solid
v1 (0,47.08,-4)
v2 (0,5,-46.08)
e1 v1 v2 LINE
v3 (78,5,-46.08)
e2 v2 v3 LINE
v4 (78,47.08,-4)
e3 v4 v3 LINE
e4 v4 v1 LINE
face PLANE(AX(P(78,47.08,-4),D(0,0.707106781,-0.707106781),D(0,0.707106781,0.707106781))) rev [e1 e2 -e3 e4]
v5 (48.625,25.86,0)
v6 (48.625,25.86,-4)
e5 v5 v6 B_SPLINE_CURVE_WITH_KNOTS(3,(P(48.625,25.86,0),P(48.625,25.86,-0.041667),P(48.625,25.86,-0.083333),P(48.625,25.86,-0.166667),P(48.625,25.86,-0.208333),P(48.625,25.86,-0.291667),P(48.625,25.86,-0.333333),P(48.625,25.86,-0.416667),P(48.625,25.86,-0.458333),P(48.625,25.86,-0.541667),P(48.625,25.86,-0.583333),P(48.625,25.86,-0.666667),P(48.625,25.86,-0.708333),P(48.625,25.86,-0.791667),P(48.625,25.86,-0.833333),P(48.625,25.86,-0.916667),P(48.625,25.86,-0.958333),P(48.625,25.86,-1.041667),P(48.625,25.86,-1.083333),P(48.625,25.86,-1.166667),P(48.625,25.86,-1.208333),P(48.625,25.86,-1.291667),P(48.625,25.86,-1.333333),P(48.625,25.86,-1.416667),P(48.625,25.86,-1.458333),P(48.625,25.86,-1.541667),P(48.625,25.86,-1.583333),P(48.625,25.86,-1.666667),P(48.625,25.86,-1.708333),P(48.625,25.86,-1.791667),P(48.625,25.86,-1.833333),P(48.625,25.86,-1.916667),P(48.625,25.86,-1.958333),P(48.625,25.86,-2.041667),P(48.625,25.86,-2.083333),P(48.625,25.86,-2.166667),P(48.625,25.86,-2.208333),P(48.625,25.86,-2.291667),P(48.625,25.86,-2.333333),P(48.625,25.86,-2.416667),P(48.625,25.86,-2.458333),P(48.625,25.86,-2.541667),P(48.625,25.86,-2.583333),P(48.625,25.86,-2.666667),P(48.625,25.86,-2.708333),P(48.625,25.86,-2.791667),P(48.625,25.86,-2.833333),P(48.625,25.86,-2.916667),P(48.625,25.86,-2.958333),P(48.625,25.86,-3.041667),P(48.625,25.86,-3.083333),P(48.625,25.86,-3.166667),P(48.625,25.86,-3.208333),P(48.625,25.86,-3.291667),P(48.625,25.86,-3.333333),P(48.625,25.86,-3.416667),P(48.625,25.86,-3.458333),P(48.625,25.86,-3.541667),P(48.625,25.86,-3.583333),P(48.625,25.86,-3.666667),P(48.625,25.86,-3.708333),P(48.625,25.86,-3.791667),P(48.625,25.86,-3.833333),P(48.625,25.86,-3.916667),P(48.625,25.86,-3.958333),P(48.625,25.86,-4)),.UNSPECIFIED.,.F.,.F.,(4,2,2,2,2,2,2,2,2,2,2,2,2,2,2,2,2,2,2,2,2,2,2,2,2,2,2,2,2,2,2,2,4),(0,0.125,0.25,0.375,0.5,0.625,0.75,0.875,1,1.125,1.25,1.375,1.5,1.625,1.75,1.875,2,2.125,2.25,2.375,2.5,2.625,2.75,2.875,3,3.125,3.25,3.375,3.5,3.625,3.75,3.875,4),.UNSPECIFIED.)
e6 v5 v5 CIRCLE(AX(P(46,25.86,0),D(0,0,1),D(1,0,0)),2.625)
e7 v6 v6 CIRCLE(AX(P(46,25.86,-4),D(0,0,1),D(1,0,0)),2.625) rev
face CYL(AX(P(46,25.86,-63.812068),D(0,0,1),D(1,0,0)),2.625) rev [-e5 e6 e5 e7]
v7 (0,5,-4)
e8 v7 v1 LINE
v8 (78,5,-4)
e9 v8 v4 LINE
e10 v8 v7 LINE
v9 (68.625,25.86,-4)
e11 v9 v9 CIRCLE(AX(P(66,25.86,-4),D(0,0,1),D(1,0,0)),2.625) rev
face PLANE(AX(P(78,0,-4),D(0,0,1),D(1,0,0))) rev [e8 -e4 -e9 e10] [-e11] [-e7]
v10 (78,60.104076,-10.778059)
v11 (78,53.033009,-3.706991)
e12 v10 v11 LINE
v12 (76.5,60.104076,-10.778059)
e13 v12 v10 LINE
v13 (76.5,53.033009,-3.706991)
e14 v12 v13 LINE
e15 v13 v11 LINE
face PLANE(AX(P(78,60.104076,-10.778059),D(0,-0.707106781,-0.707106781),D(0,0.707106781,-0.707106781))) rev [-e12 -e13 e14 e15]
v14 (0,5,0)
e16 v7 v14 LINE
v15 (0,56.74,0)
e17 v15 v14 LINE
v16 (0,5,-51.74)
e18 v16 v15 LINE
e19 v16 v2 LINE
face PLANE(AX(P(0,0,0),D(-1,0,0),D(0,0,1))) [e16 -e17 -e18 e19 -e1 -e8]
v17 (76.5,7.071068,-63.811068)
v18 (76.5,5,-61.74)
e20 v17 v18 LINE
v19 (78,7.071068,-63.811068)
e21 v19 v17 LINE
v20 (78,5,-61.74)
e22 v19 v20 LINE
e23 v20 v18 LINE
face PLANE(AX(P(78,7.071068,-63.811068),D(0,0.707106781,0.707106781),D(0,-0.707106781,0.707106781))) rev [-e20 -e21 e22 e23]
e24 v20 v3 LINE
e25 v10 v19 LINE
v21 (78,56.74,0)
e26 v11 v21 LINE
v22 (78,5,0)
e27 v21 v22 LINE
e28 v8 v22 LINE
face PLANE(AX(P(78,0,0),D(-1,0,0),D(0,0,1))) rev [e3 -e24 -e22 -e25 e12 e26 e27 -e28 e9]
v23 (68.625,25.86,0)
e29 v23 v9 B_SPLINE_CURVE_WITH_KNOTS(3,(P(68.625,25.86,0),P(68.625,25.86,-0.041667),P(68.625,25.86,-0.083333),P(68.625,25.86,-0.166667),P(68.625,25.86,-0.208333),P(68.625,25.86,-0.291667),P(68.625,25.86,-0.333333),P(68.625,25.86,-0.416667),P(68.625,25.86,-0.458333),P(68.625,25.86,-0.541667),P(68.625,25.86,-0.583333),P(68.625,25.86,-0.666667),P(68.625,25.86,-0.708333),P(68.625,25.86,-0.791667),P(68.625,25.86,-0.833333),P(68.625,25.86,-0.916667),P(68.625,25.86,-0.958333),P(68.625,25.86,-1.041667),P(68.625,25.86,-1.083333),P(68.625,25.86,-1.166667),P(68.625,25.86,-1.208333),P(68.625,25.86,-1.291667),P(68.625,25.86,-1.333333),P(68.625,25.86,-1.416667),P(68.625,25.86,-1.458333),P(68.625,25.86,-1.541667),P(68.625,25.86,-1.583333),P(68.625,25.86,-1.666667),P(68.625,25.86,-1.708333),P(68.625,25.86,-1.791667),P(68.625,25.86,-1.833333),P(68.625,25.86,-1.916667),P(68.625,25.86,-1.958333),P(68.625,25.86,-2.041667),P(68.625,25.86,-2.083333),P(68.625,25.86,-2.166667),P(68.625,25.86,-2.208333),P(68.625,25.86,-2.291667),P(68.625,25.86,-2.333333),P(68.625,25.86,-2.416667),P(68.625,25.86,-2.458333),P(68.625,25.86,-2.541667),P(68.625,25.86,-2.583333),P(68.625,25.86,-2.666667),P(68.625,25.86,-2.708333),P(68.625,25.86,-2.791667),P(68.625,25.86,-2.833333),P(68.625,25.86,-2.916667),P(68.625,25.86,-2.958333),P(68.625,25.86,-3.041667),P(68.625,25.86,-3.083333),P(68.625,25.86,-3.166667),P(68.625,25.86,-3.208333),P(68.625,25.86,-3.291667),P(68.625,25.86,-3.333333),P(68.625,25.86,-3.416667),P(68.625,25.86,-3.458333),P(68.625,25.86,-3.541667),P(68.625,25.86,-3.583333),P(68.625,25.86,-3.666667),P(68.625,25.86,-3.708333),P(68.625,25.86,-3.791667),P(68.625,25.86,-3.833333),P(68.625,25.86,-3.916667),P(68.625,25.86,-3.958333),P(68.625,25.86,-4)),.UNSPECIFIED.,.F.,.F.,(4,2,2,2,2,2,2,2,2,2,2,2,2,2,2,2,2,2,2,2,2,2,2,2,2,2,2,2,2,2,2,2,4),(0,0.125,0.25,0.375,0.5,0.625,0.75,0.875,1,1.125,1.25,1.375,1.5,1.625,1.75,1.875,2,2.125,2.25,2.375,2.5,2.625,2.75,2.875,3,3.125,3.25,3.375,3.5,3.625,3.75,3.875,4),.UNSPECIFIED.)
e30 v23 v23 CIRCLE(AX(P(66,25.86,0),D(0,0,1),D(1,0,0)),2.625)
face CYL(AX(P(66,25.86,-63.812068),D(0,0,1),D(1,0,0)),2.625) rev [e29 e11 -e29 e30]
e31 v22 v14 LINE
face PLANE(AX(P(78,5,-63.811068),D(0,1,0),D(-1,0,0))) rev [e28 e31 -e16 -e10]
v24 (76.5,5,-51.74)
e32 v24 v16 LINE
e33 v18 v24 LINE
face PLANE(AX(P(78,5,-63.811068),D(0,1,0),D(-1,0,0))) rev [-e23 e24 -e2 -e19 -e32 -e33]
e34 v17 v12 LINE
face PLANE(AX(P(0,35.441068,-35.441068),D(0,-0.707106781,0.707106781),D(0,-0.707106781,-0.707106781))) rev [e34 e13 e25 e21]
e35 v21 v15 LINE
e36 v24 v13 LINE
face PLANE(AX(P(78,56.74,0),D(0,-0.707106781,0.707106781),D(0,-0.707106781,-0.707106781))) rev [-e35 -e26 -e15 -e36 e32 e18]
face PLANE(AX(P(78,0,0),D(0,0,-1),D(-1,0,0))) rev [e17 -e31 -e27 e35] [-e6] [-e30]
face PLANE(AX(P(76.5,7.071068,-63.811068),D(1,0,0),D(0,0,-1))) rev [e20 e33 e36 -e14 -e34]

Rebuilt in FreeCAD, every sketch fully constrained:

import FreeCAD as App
import Part
import Sketcher
Q = App.Units.Quantity

doc = App.newDocument("Part")
body = doc.addObject("PartDesign::Body", "Body")

# Sketch on YZ plane
sketch1 = body.newObject("Sketcher::SketchObject", "Sketch")
sketch1.AttachmentSupport = (doc.getObject("YZ_Plane"), [""])
sketch1.MapMode = "FlatFace"
sketch1.addGeometry([
    Part.LineSegment(App.Vector(56.7, 0, 0), App.Vector(0, 0, 0)),  # 0
    Part.LineSegment(App.Vector(0, 0, 0), App.Vector(0, -4, 0)),  # 1
    Part.LineSegment(App.Vector(0, -4, 0), App.Vector(47.1, -4, 0)),  # 2
    Part.LineSegment(App.Vector(47.1, -4, 0), App.Vector(0, -51.1, 0)),  # 3
    Part.LineSegment(App.Vector(0, -51.1, 0), App.Vector(0, -56.7, 0)),  # 4
    Part.LineSegment(App.Vector(0, -56.7, 0), App.Vector(56.7, 0, 0)),  # 5
], False)
sketch1.addConstraint([
    Sketcher.Constraint("Coincident", 0, 2, 1, 1),
    Sketcher.Constraint("Coincident", 1, 2, 2, 1),
    Sketcher.Constraint("Coincident", 2, 2, 3, 1),
    Sketcher.Constraint("Coincident", 3, 2, 4, 1),
    Sketcher.Constraint("Coincident", 4, 2, 5, 1),
    Sketcher.Constraint("Coincident", 5, 2, 0, 1),
    Sketcher.Constraint("Horizontal", 0),
    Sketcher.Constraint("Vertical", 1),
    Sketcher.Constraint("Horizontal", 2),
    Sketcher.Constraint("Vertical", 4),
    Sketcher.Constraint("Coincident", 0, 2, -1, 1),
    Sketcher.Constraint("PointOnObject", 3, 2, -2),
    Sketcher.Constraint("Parallel", 3, 5),
    Sketcher.Constraint("DistanceY", 1, 2, 1, 1, 4.0),
    Sketcher.Constraint("Angle", 3, Q("-135 deg")),
    Sketcher.Constraint("DistanceX", 0, 2, 0, 1, 56.74),
    Sketcher.Constraint("DistanceX", 2, 1, 2, 2, 47.08),
])
pad1 = body.newObject("PartDesign::Pad", "Pad")
pad1.Profile = sketch1
pad1.Length = 78

# Sketch on an angled plane
sketch2 = body.newObject("Sketcher::SketchObject", "Sketch001")
sketch2.Placement = App.Placement(App.Vector(0, 28.37, -28.37), App.Rotation(App.Vector(1, 0, 0), App.Vector(0, -0.707106781, -0.707106781), App.Vector(0, 0.707106781, -0.707106781), "ZXY"))
sketch2.addGeometry([
    Part.LineSegment(App.Vector(76.5, 40.1, 0), App.Vector(76.5, -34.9, 0)),
    Part.LineSegment(App.Vector(76.5, -34.9, 0), App.Vector(78, -34.9, 0)),
    Part.LineSegment(App.Vector(78, -34.9, 0), App.Vector(78, 40.1, 0)),
    Part.LineSegment(App.Vector(78, 40.1, 0), App.Vector(76.5, 40.1, 0)),
], False)
sketch2.addConstraint([
    Sketcher.Constraint("Coincident", 0, 2, 1, 1),
    Sketcher.Constraint("Coincident", 1, 2, 2, 1),
    Sketcher.Constraint("Coincident", 2, 2, 3, 1),
    Sketcher.Constraint("Coincident", 3, 2, 0, 1),
    Sketcher.Constraint("Vertical", 0),
    Sketcher.Constraint("Horizontal", 1),
    Sketcher.Constraint("Vertical", 2),
    Sketcher.Constraint("Horizontal", 3),
    Sketcher.Constraint("DistanceY", 0, 2, 0, 1, 75.0),
    Sketcher.Constraint("DistanceX", 1, 1, 1, 2, 1.5),
    Sketcher.Constraint("DistanceX", -1, 1, 1, 2, 78.0),
    Sketcher.Constraint("DistanceY", 0, 2, -1, 1, 34.878761),
])
pad2 = body.newObject("PartDesign::Pad", "Pad001")
pad2.Profile = sketch2
pad2.Length = 10

# Sketch on XY plane
sketch3 = body.newObject("Sketcher::SketchObject", "Sketch002")
sketch3.AttachmentSupport = (doc.getObject("XY_Plane"), [""])
sketch3.MapMode = "FlatFace"
sketch3.addGeometry(Part.Circle(App.Vector(66, 25.9, 0), App.Vector(0, 0, 1), 2.6), False)
sketch3.addConstraint([
    Sketcher.Constraint("Diameter", 0, 5.25),
    Sketcher.Constraint("DistanceX", -1, 1, 0, 3, 66.0),
    Sketcher.Constraint("DistanceY", -1, 1, 0, 3, 25.86),
])
pocket1 = body.newObject("PartDesign::Pocket", "Pocket")
pocket1.Profile = sketch3
pocket1.Type = "UpToFirst"

# Sketch on XY plane
sketch4 = body.newObject("Sketcher::SketchObject", "Sketch003")
sketch4.AttachmentSupport = (doc.getObject("XY_Plane"), [""])
sketch4.MapMode = "FlatFace"
sketch4.addGeometry(Part.Circle(App.Vector(46, 25.9, 0), App.Vector(0, 0, 1), 2.6), False)
sketch4.addConstraint([
    Sketcher.Constraint("Diameter", 0, 5.25),
    Sketcher.Constraint("DistanceX", -1, 1, 0, 3, 46.0),
    Sketcher.Constraint("DistanceY", -1, 1, 0, 3, 25.86),
])
pocket2 = body.newObject("PartDesign::Pocket", "Pocket001")
pocket2.Profile = sketch4
pocket2.Type = "UpToFirst"

# Sketch on XY plane
sketch5 = body.newObject("Sketcher::SketchObject", "Sketch004")
sketch5.AttachmentSupport = (doc.getObject("XY_Plane"), [""])
sketch5.MapMode = "FlatFace"
sketch5.addGeometry([
    Part.LineSegment(App.Vector(0, 5, 0), App.Vector(0, 0, 0)),
    Part.LineSegment(App.Vector(0, 0, 0), App.Vector(78, 0, 0)),
    Part.LineSegment(App.Vector(78, 0, 0), App.Vector(78, 5, 0)),
    Part.LineSegment(App.Vector(78, 5, 0), App.Vector(0, 5, 0)),
], False)
sketch5.addConstraint([
    Sketcher.Constraint("Coincident", 0, 2, 1, 1),
    Sketcher.Constraint("Coincident", 1, 2, 2, 1),
    Sketcher.Constraint("Coincident", 2, 2, 3, 1),
    Sketcher.Constraint("Coincident", 3, 2, 0, 1),
    Sketcher.Constraint("Vertical", 0),
    Sketcher.Constraint("Horizontal", 1),
    Sketcher.Constraint("Vertical", 2),
    Sketcher.Constraint("Horizontal", 3),
    Sketcher.Constraint("Coincident", 0, 2, -1, 1),
    Sketcher.Constraint("DistanceX", 1, 1, 1, 2, 78.0),
    Sketcher.Constraint("DistanceY", 0, 2, 0, 1, 5.0),
])
pocket3 = body.newObject("PartDesign::Pocket", "Pocket002")
pocket3.Profile = sketch5
pocket3.Type = "ThroughAll"

doc.recompute()
